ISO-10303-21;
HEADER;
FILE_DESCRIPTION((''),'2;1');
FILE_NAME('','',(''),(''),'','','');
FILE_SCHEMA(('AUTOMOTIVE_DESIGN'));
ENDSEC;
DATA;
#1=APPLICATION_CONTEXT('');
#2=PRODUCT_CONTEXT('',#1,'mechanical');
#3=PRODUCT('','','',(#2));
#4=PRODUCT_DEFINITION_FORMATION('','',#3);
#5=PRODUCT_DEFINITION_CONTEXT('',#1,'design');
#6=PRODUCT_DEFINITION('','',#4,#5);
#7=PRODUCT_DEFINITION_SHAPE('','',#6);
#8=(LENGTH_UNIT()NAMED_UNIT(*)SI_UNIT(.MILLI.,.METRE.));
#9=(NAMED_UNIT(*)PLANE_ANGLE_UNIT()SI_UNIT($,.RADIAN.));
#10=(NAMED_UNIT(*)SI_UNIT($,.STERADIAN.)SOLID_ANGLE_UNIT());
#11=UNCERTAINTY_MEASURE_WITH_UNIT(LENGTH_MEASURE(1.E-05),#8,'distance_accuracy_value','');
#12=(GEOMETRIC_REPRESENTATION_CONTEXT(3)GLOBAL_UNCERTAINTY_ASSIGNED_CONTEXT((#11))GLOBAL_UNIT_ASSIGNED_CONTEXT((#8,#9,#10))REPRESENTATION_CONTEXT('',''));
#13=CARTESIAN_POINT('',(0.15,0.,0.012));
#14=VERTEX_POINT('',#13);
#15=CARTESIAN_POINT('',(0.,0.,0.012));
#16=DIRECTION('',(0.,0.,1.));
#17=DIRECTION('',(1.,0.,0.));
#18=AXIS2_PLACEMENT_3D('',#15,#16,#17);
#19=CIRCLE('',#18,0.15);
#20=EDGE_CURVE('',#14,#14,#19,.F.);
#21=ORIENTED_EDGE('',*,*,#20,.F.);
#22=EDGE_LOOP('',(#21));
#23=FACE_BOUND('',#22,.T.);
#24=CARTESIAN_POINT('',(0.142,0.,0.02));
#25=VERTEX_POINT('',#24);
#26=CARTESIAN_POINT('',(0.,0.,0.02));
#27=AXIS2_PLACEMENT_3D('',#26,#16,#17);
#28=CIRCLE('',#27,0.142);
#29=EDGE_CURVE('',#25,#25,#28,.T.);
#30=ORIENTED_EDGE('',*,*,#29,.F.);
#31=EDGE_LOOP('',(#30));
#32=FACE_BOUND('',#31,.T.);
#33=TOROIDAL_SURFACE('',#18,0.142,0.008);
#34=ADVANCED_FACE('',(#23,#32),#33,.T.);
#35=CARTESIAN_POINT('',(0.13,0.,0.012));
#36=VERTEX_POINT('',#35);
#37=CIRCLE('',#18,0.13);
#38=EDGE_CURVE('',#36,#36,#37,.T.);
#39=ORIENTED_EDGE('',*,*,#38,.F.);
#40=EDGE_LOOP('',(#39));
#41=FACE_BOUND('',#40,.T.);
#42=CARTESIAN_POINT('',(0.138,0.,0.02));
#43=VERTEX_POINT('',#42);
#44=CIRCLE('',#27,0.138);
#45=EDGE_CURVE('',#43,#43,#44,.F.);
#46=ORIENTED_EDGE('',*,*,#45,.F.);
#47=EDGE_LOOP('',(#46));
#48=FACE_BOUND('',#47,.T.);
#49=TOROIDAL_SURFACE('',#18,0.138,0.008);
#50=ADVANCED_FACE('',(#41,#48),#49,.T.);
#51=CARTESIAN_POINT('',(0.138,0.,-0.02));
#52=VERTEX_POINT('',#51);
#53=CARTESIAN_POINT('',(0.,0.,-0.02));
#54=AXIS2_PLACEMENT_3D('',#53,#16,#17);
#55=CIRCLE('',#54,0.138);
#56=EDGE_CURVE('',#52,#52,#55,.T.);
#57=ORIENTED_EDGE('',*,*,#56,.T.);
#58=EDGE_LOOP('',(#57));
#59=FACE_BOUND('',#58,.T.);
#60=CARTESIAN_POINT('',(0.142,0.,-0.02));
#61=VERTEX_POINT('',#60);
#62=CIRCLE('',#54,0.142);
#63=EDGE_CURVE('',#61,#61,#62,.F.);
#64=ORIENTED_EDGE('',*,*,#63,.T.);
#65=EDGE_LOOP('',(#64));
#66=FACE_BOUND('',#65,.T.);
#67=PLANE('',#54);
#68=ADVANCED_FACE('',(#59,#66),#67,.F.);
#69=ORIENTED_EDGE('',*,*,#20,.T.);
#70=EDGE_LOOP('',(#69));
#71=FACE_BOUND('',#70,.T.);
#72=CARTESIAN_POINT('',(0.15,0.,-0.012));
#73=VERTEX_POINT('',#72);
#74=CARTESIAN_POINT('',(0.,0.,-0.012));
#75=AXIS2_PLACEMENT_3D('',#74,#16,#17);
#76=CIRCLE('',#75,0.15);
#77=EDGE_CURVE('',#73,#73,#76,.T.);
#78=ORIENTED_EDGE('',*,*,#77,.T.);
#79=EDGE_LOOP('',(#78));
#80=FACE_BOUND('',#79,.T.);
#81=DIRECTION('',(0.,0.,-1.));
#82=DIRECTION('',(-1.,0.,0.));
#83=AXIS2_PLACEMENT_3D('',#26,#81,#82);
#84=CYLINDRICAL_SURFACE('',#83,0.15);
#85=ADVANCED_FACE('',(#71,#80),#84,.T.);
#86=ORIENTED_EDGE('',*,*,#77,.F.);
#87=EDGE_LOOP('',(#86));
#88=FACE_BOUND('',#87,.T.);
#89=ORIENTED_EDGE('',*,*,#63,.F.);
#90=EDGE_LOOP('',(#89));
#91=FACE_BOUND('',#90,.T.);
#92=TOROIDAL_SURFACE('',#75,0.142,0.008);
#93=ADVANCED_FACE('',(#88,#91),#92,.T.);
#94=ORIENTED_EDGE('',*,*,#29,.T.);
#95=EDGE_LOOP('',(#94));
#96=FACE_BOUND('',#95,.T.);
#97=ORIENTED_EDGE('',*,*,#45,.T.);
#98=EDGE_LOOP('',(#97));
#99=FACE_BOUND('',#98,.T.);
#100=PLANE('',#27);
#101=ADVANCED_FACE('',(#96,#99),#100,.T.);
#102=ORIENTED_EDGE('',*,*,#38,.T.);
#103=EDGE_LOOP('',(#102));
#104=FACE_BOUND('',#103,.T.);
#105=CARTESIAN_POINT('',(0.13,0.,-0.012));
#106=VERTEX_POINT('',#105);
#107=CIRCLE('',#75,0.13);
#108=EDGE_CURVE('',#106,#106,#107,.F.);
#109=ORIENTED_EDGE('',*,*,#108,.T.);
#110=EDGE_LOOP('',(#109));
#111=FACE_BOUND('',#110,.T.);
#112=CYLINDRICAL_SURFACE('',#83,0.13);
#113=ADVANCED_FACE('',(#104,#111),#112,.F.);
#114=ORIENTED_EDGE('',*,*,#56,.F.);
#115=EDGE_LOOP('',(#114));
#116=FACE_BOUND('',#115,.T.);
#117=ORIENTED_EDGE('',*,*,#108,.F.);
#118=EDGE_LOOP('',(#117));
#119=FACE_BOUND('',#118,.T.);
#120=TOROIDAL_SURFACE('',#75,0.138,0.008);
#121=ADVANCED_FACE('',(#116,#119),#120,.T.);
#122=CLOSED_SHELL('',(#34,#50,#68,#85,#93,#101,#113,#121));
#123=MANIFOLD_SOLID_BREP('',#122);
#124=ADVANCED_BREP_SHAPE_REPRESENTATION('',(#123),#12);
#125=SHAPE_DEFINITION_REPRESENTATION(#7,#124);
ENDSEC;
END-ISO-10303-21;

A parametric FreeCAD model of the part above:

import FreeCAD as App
import Part
import Sketcher

V = App.Vector


def edges_at(feature, points):
    """Names of the edges that pass closest to the given points."""
    edges = feature.Shape.Edges
    near = lambda p: min(range(len(edges)), key=lambda i: edges[i].distToShape(Part.Vertex(*p))[0])
    return sorted({f"Edge{near(p) + 1}" for p in points})

doc = App.newDocument("Part")
body = doc.addObject("PartDesign::Body", "Body")

# Sketch on XY plane
sketch1 = body.newObject("Sketcher::SketchObject", "Sketch")
sketch1.AttachmentSupport = (doc.getObject("XY_Plane"), [""])
sketch1.MapMode = "FlatFace"
sketch1.addGeometry(Part.Circle(V(0, 0, 0), V(0, 0, 1), 0.15), False)
sketch1.addGeometry(Part.Circle(V(0, 0, 0), V(0, 0, 1), 0.13), False)
sketch1.addConstraint(Sketcher.Constraint("Coincident", 0, 3, -1, 1))
sketch1.addConstraint(Sketcher.Constraint("Coincident", 1, 3, -1, 1))
sketch1.addConstraint(Sketcher.Constraint("Diameter", 0, 0.3))
sketch1.addConstraint(Sketcher.Constraint("Diameter", 1, 0.26))
pad1 = body.newObject("PartDesign::Pad", "Pad")
pad1.Profile = sketch1
pad1.Length = 0.04
pad1.Midplane = True
doc.recompute()

fillet = body.newObject("PartDesign::Fillet", "Fillet")
fillet.Base = (pad1, edges_at(pad1, [
    (-0.15, 0, -0.02),
    (-0.13, 0, -0.02),
    (-0.15, 0, 0.02),
    (-0.13, 0, 0.02),
]))
fillet.Radius = 0.008

doc.recompute()
